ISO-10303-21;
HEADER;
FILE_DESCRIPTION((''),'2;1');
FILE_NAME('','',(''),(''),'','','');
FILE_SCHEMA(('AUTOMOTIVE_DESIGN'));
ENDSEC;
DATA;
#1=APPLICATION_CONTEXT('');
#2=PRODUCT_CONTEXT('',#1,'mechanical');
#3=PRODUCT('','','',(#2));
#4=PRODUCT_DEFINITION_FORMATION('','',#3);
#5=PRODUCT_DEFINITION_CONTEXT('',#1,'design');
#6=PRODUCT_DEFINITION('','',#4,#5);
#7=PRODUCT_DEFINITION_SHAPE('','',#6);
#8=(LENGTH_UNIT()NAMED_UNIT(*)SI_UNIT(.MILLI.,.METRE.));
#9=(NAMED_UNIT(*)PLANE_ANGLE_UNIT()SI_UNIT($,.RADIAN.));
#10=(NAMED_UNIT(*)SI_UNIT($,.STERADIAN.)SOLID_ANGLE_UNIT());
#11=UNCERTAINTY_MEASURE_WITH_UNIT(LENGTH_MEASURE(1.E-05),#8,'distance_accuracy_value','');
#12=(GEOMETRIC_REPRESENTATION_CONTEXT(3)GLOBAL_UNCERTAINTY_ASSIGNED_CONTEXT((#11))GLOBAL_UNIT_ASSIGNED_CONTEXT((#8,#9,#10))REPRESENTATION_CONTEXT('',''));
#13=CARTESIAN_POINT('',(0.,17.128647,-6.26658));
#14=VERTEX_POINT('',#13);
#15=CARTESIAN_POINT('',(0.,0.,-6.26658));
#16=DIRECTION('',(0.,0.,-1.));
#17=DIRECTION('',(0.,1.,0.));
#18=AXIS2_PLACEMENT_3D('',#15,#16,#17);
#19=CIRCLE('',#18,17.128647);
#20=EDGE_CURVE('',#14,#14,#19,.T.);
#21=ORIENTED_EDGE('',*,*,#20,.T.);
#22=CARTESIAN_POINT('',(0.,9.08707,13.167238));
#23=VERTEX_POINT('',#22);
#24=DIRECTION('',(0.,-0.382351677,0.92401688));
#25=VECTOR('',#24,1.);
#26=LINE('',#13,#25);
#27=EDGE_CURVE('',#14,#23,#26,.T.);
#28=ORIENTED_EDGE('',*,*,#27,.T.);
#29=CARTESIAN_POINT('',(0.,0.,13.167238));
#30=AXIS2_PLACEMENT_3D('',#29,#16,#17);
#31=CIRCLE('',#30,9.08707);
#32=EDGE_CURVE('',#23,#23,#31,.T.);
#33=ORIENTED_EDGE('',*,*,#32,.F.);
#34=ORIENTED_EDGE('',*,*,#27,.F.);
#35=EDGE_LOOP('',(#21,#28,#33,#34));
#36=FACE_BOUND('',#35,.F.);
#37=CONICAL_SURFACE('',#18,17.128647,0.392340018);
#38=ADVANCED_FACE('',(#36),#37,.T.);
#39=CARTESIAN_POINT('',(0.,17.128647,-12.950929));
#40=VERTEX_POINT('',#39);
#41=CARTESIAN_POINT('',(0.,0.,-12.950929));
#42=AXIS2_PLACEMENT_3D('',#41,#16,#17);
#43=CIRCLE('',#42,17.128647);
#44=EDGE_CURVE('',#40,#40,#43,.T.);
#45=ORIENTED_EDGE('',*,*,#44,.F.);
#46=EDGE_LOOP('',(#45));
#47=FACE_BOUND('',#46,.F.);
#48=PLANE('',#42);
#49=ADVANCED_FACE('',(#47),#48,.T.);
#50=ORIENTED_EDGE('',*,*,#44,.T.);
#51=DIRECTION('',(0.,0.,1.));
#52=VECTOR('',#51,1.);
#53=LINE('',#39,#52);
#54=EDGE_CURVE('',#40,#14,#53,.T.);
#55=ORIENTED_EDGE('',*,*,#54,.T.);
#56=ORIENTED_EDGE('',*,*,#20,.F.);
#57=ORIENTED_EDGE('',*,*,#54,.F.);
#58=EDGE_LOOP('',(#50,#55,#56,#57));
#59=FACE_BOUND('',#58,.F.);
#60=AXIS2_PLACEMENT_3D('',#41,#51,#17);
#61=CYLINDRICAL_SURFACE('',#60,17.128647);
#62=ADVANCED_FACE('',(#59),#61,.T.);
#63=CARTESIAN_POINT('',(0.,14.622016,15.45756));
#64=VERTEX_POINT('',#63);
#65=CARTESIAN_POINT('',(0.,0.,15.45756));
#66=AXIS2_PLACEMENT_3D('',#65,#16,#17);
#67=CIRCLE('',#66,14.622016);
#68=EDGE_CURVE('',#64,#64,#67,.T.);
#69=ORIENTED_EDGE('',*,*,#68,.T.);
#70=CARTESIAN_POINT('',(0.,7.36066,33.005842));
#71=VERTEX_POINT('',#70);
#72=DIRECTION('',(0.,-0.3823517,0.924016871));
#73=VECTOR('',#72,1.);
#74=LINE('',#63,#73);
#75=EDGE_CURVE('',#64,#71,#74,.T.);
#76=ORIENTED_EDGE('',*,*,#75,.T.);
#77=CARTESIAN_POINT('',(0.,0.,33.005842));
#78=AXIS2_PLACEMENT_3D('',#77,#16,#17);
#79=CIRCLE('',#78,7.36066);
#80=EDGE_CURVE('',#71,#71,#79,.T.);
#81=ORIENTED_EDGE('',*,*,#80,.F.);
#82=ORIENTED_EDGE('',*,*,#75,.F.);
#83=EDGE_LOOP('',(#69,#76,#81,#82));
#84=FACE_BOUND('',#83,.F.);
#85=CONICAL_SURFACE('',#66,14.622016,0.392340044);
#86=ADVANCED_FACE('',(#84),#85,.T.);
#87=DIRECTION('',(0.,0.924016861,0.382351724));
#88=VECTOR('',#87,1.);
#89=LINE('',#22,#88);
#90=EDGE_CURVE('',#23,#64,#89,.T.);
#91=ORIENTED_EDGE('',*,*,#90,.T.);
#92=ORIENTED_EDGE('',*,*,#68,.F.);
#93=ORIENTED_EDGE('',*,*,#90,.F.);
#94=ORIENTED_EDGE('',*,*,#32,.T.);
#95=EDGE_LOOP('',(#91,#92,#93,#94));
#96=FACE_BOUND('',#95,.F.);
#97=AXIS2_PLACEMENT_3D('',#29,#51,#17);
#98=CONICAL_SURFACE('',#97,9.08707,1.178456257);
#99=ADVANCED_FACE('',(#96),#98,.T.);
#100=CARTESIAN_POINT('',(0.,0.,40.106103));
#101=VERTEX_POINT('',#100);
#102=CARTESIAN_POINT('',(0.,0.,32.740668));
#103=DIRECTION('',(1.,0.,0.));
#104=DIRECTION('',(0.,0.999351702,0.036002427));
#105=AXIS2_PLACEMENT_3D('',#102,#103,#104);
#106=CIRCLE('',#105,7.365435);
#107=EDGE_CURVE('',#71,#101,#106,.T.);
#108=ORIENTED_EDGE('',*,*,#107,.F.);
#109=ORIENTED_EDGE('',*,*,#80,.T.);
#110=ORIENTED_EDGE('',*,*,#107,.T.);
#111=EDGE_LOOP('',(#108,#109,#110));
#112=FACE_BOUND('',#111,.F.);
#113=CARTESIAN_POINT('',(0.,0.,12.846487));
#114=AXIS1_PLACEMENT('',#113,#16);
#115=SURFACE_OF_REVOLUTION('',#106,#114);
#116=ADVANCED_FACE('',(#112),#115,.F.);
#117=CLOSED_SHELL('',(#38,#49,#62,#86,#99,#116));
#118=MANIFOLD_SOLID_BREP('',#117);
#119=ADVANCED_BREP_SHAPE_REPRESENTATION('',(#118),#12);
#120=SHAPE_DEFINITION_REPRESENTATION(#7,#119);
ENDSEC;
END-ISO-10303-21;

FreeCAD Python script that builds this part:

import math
import FreeCAD as App
import Part
import Sketcher

V = App.Vector
Q = App.Units.Quantity

doc = App.newDocument("Part")
body = doc.addObject("PartDesign::Body", "Body")

sketch1 = body.newObject("Sketcher::SketchObject", "Sketch")
sketch1.AttachmentSupport = (doc.getObject("YZ_Plane"), [""])
sketch1.MapMode = "FlatFace"
sketch1.addGeometry([
    Part.LineSegment(V(15, 15, 0), V(7, 33, 0)),
    Part.ArcOfCircle(Part.Circle(V(0, 33, 0), V(0, 0, 1), 7), math.radians(2), math.radians(90)),
    Part.LineSegment(V(0, 40, 0), V(0, -13, 0)),
    Part.LineSegment(V(0, -13, 0), V(17, -13, 0)),
    Part.LineSegment(V(17, -13, 0), V(17, -6, 0)),
    Part.LineSegment(V(17, -6, 0), V(9, 13, 0)),
    Part.LineSegment(V(9, 13, 0), V(15, 15, 0)),
], False)
sketch1.addConstraint([
    Sketcher.Constraint("Coincident", 0, 2, 1, 1),
    Sketcher.Constraint("Coincident", 1, 2, 2, 1),
    Sketcher.Constraint("Coincident", 2, 2, 3, 1),
    Sketcher.Constraint("Coincident", 3, 2, 4, 1),
    Sketcher.Constraint("Coincident", 4, 2, 5, 1),
    Sketcher.Constraint("Coincident", 5, 2, 6, 1),
    Sketcher.Constraint("Coincident", 6, 2, 0, 1),
    Sketcher.Constraint("Vertical", 2),
    Sketcher.Constraint("Horizontal", 3),
    Sketcher.Constraint("Vertical", 4),
    Sketcher.Constraint("PointOnObject", 1, 3, -2),
    Sketcher.Constraint("PointOnObject", 1, 2, -2),
    Sketcher.Constraint("Parallel", 0, 5),
    Sketcher.Constraint("Perpendicular", 5, 6),
    Sketcher.Constraint("Radius", 1, Q("7.365435 mm")),
    Sketcher.Constraint("Distance", 0, Q("18.9913 mm")),
    Sketcher.Constraint("DistanceY", 4, 1, 4, 2, Q("6.684349 mm")),
    Sketcher.Constraint("Distance", 6, Q("5.990092 mm")),
    Sketcher.Constraint("DistanceX", 3, 1, 3, 2, Q("17.128647 mm")),
    Sketcher.Constraint("DistanceY", 2, 2, 2, 1, Q("53.057032 mm")),
    Sketcher.Constraint("DistanceY", -1, 1, 1, 3, Q("32.740668 mm")),
    Sketcher.Constraint("DistanceX", -1, 1, 0, 2, Q("7.36066 mm")),
])
revolution = body.newObject("PartDesign::Revolution", "Revolution")
revolution.Profile = sketch1
revolution.ReferenceAxis = (sketch1, ["V_Axis"])
revolution.Angle = 360

doc.recompute()
